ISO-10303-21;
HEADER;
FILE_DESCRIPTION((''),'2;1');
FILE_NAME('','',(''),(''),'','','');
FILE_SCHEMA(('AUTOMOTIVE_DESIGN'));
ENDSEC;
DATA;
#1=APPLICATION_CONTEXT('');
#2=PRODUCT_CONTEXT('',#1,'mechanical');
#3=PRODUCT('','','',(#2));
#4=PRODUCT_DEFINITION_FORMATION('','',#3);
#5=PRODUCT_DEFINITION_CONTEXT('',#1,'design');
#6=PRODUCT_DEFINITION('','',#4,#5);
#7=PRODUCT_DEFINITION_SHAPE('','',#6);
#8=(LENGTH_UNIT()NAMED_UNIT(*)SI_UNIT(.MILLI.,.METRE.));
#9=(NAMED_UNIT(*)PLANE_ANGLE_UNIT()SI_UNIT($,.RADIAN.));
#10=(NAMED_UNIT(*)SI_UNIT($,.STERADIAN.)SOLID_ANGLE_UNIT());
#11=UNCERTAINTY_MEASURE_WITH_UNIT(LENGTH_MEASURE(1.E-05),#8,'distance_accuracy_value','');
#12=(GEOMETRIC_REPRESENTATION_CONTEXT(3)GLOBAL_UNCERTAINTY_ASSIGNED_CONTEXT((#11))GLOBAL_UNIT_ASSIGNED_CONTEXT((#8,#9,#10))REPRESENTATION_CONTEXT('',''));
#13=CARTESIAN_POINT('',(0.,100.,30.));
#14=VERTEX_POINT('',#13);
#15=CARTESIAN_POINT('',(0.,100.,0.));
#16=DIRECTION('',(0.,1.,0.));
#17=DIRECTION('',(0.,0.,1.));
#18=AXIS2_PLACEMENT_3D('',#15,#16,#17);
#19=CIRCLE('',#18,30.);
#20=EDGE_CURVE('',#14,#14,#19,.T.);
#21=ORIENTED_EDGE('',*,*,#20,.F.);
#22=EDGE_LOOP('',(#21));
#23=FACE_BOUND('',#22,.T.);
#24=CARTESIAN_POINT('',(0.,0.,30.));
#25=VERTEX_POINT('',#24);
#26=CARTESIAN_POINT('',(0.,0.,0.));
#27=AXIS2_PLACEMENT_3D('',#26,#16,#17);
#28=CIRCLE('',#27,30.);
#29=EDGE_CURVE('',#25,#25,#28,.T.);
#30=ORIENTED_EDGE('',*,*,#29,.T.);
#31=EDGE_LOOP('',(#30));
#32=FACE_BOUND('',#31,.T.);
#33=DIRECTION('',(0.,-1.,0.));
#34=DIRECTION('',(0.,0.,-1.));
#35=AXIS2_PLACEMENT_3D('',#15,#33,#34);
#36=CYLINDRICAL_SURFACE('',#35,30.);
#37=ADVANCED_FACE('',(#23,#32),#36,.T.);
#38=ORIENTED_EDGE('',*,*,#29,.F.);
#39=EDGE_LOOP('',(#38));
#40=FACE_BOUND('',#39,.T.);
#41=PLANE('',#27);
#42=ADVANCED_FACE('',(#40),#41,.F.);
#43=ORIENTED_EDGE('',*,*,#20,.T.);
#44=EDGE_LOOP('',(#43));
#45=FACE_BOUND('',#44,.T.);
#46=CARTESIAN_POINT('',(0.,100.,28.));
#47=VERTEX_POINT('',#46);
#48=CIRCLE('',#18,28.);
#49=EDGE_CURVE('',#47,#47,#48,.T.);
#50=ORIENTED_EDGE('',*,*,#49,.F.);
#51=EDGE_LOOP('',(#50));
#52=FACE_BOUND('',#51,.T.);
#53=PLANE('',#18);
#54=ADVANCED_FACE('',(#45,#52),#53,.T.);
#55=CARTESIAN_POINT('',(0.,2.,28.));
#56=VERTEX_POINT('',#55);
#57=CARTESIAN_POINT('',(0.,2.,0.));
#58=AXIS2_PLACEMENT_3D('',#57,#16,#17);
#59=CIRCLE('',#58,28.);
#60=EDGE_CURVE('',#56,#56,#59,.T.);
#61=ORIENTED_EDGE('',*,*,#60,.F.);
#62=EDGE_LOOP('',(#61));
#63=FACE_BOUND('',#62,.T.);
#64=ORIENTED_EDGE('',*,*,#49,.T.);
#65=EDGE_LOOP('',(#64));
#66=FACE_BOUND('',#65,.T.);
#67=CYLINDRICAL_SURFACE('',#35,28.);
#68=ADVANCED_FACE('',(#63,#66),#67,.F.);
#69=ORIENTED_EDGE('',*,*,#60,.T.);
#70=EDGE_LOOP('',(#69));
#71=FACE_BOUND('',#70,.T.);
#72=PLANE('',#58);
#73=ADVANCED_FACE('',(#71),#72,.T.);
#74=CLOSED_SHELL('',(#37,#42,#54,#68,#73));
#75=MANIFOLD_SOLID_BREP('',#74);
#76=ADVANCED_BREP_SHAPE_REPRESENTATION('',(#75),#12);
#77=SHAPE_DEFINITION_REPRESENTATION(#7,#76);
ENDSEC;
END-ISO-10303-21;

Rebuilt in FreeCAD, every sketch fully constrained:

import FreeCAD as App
import Part
import Sketcher
from FreeCAD import Vector
Q = App.Units.Quantity


def faces_at(feature, points):
    """Names of the faces that lie closest to the given points."""
    faces = feature.Shape.Faces
    near = lambda p: min(range(len(faces)), key=lambda i: faces[i].distToShape(Part.Vertex(*p))[0])
    return sorted({f"Face{near(p) + 1}" for p in points})

doc = App.newDocument("Part")
params = doc.addObject("Spreadsheet::Sheet", "Params")
for row, (alias, value) in enumerate([
    ("sketch1_diameter", "60 mm"),
    ("pad1_length", "100 mm"),
    ("thickness_wall", "2 mm"),
], start=1):
    params.set(f"A{row}", alias)
    params.set(f"B{row}", "=" + value)
    params.setAlias(f"B{row}", alias)

body = doc.addObject("PartDesign::Body", "Body")

# Sketch on XZ plane
sketch1 = body.newObject("Sketcher::SketchObject", "Sketch")
sketch1.AttachmentSupport = (doc.getObject("XZ_Plane"), [""])
sketch1.MapMode = "FlatFace"
sketch1.addGeometry(Part.Circle(Vector(0, 0, 0), Vector(0, 0, 1), 30), False)
sketch1.addConstraint([
    Sketcher.Constraint("Coincident", 0, 3, -1, 1),
    Sketcher.Constraint("Diameter", 0, Q("60 mm")),
])
sketch1.setExpression("Constraints[1]", "Params.sketch1_diameter")
pad1 = body.newObject("PartDesign::Pad", "Pad")
pad1.Profile = sketch1
pad1.setExpression("Length", "Params.pad1_length")
pad1.Reversed = True
doc.recompute()

thickness = body.newObject("PartDesign::Thickness", "Thickness")
thickness.Base = (pad1, faces_at(pad1, [(0, 100, 0)]))
thickness.setExpression("Value", "Params.thickness_wall")
thickness.Reversed = True
thickness.Join = "Intersection"

doc.recompute()
